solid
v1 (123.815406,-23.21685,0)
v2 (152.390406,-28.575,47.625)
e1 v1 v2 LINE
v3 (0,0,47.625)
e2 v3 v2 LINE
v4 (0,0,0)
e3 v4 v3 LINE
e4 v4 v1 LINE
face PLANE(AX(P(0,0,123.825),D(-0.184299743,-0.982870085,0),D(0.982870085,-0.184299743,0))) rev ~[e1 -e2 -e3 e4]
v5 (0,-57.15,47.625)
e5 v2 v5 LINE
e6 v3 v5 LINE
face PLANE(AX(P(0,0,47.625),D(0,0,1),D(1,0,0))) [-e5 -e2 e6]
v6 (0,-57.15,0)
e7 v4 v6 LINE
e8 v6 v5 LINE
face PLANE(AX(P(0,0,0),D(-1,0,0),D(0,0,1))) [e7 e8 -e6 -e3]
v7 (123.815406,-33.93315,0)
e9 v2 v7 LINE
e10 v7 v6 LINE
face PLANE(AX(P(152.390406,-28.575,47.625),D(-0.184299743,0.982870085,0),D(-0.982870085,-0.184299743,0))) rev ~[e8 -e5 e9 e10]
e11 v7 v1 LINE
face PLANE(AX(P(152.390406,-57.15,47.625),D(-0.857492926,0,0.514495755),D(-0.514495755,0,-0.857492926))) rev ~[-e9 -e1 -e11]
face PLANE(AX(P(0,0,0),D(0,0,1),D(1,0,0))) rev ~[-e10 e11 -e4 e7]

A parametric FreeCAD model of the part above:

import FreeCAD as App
import Part
import Sketcher
Q = App.Units.Quantity

doc = App.newDocument("Part")
body = doc.addObject("PartDesign::Body", "Body")

# Sketch on XZ plane
sketch1 = body.newObject("Sketcher::SketchObject", "Sketch")
sketch1.AttachmentSupport = (doc.getObject("XZ_Plane"), [""])
sketch1.MapMode = "FlatFace"
sketch1.addGeometry(Part.LineSegment(App.Vector(0, 48, 0), App.Vector(0, 0, 0)), False)
sketch1.addGeometry(Part.LineSegment(App.Vector(0, 0, 0), App.Vector(152, 0, 0)), False)
sketch1.addGeometry(Part.LineSegment(App.Vector(152, 0, 0), App.Vector(152, 48, 0)), False)
sketch1.addGeometry(Part.LineSegment(App.Vector(152, 48, 0), App.Vector(0, 48, 0)), False)
sketch1.addConstraint(Sketcher.Constraint("Coincident", 0, 2, 1, 1))
sketch1.addConstraint(Sketcher.Constraint("Coincident", 1, 2, 2, 1))
sketch1.addConstraint(Sketcher.Constraint("Coincident", 2, 2, 3, 1))
sketch1.addConstraint(Sketcher.Constraint("Coincident", 3, 2, 0, 1))
sketch1.addConstraint(Sketcher.Constraint("Vertical", 0))
sketch1.addConstraint(Sketcher.Constraint("Horizontal", 1))
sketch1.addConstraint(Sketcher.Constraint("Vertical", 2))
sketch1.addConstraint(Sketcher.Constraint("Horizontal", 3))
sketch1.addConstraint(Sketcher.Constraint("Coincident", 0, 2, -1, 1))
sketch1.addConstraint(Sketcher.Constraint("DistanceY", 0, 2, 0, 1, Q("1.875 in")))
sketch1.addConstraint(Sketcher.Constraint("DistanceX", 1, 1, 1, 2, Q("152.390406 mm")))
pad1 = body.newObject("PartDesign::Pad", "Pad")
pad1.Profile = sketch1
pad1.Length = Q("2.25 in")

# Sketch on XZ plane
sketch2 = body.newObject("Sketcher::SketchObject", "Sketch001")
sketch2.AttachmentSupport = (doc.getObject("XZ_Plane"), [""])
sketch2.MapMode = "FlatFace"
sketch2.AttachmentOffset = App.Placement(App.Vector(0, 0, 2.25 * 25.4), App.Rotation())
sketch2.addGeometry(Part.LineSegment(App.Vector(152, 0, 0), App.Vector(152, 48, 0)), False)
sketch2.addGeometry(Part.LineSegment(App.Vector(152, 48, 0), App.Vector(124, 0, 0)), False)
sketch2.addGeometry(Part.LineSegment(App.Vector(124, 0, 0), App.Vector(152, 0, 0)), False)
sketch2.addConstraint(Sketcher.Constraint("Coincident", 0, 2, 1, 1))
sketch2.addConstraint(Sketcher.Constraint("Coincident", 1, 2, 2, 1))
sketch2.addConstraint(Sketcher.Constraint("Coincident", 2, 2, 0, 1))
sketch2.addConstraint(Sketcher.Constraint("Vertical", 0))
sketch2.addConstraint(Sketcher.Constraint("Horizontal", 2))
sketch2.addConstraint(Sketcher.Constraint("PointOnObject", 1, 2, -1))
sketch2.addConstraint(Sketcher.Constraint("DistanceX", 2, 1, 2, 2, Q("1.125 in")))
sketch2.addConstraint(Sketcher.Constraint("DistanceY", 0, 1, 0, 2, Q("1.875 in")))
sketch2.addConstraint(Sketcher.Constraint("DistanceX", -1, 1, 0, 2, Q("152.390406 mm")))
pocket1 = body.newObject("PartDesign::Pocket", "Pocket")
pocket1.Profile = sketch2
pocket1.Length = Q("2.25 in")

# Sketch on XY plane
sketch3 = body.newObject("Sketcher::SketchObject", "Sketch002")
sketch3.AttachmentSupport = (doc.getObject("XY_Plane"), [""])
sketch3.MapMode = "FlatFace"
sketch3.AttachmentOffset = App.Placement(App.Vector(0, 0, 1.875 * 25.4), App.Rotation())
sketch3.addGeometry(Part.LineSegment(App.Vector(0, 0, 0), App.Vector(152, -29, 0)), False)
sketch3.addGeometry(Part.LineSegment(App.Vector(152, -29, 0), App.Vector(152, 0, 0)), False)
sketch3.addGeometry(Part.LineSegment(App.Vector(152, 0, 0), App.Vector(0, 0, 0)), False)
sketch3.addConstraint(Sketcher.Constraint("Coincident", 0, 2, 1, 1))
sketch3.addConstraint(Sketcher.Constraint("Coincident", 1, 2, 2, 1))
sketch3.addConstraint(Sketcher.Constraint("Coincident", 2, 2, 0, 1))
sketch3.addConstraint(Sketcher.Constraint("Vertical", 1))
sketch3.addConstraint(Sketcher.Constraint("Horizontal", 2))
sketch3.addConstraint(Sketcher.Constraint("Coincident", 2, 2, -1, 1))
sketch3.addConstraint(Sketcher.Constraint("DistanceY", 1, 1, 1, 2, Q("1.125 in")))
sketch3.addConstraint(Sketcher.Constraint("DistanceX", 2, 2, 2, 1, Q("152.390406 mm")))
pad2 = body.newObject("PartDesign::Pad", "Pad001")
pad2.Profile = sketch3
pad2.Length = Q("3 in")

# Sketch on XY plane
sketch4 = body.newObject("Sketcher::SketchObject", "Sketch003")
sketch4.AttachmentSupport = (doc.getObject("XY_Plane"), [""])
sketch4.MapMode = "FlatFace"
sketch4.AttachmentOffset = App.Placement(App.Vector(0, 0, 4.875 * 25.4), App.Rotation())
sketch4.addGeometry(Part.LineSegment(App.Vector(0, 0, 0), App.Vector(152, -29, 0)), False)
sketch4.addGeometry(Part.LineSegment(App.Vector(152, -29, 0), App.Vector(152, 0, 0)), False)
sketch4.addGeometry(Part.LineSegment(App.Vector(152, 0, 0), App.Vector(0, 0, 0)), False)
sketch4.addConstraint(Sketcher.Constraint("Coincident", 0, 2, 1, 1))
sketch4.addConstraint(Sketcher.Constraint("Coincident", 1, 2, 2, 1))
sketch4.addConstraint(Sketcher.Constraint("Coincident", 2, 2, 0, 1))
sketch4.addConstraint(Sketcher.Constraint("Vertical", 1))
sketch4.addConstraint(Sketcher.Constraint("Horizontal", 2))
sketch4.addConstraint(Sketcher.Constraint("Coincident", 2, 2, -1, 1))
sketch4.addConstraint(Sketcher.Constraint("DistanceY", 1, 1, 1, 2, Q("1.125 in")))
sketch4.addConstraint(Sketcher.Constraint("DistanceX", 2, 2, 2, 1, Q("152.390406 mm")))
pocket2 = body.newObject("PartDesign::Pocket", "Pocket001")
pocket2.Profile = sketch4
pocket2.Length = Q("5 in")

# Sketch on XY plane
sketch5 = body.newObject("Sketcher::SketchObject", "Sketch004")
sketch5.AttachmentSupport = (doc.getObject("XY_Plane"), [""])
sketch5.MapMode = "FlatFace"
sketch5.AttachmentOffset = App.Placement(App.Vector(0, 0, 1.875 * 25.4), App.Rotation())
sketch5.addGeometry(Part.LineSegment(App.Vector(152, -57, 0), App.Vector(152, -29, 0)), False)
sketch5.addGeometry(Part.LineSegment(App.Vector(152, -29, 0), App.Vector(0, -57, 0)), False)
sketch5.addGeometry(Part.LineSegment(App.Vector(0, -57, 0), App.Vector(152, -57, 0)), False)
sketch5.addConstraint(Sketcher.Constraint("Coincident", 0, 2, 1, 1))
sketch5.addConstraint(Sketcher.Constraint("Coincident", 1, 2, 2, 1))
sketch5.addConstraint(Sketcher.Constraint("Coincident", 2, 2, 0, 1))
sketch5.addConstraint(Sketcher.Constraint("Vertical", 0))
sketch5.addConstraint(Sketcher.Constraint("Horizontal", 2))
sketch5.addConstraint(Sketcher.Constraint("PointOnObject", 1, 2, -2))
sketch5.addConstraint(Sketcher.Constraint("DistanceY", 0, 1, 0, 2, Q("1.125 in")))
sketch5.addConstraint(Sketcher.Constraint("DistanceY", 1, 2, -1, 1, Q("2.25 in")))
sketch5.addConstraint(Sketcher.Constraint("DistanceX", 2, 1, 2, 2, Q("152.390406 mm")))
pocket3 = body.newObject("PartDesign::Pocket", "Pocket002")
pocket3.Profile = sketch5
pocket3.Length = Q("2 in")

doc.recompute()
